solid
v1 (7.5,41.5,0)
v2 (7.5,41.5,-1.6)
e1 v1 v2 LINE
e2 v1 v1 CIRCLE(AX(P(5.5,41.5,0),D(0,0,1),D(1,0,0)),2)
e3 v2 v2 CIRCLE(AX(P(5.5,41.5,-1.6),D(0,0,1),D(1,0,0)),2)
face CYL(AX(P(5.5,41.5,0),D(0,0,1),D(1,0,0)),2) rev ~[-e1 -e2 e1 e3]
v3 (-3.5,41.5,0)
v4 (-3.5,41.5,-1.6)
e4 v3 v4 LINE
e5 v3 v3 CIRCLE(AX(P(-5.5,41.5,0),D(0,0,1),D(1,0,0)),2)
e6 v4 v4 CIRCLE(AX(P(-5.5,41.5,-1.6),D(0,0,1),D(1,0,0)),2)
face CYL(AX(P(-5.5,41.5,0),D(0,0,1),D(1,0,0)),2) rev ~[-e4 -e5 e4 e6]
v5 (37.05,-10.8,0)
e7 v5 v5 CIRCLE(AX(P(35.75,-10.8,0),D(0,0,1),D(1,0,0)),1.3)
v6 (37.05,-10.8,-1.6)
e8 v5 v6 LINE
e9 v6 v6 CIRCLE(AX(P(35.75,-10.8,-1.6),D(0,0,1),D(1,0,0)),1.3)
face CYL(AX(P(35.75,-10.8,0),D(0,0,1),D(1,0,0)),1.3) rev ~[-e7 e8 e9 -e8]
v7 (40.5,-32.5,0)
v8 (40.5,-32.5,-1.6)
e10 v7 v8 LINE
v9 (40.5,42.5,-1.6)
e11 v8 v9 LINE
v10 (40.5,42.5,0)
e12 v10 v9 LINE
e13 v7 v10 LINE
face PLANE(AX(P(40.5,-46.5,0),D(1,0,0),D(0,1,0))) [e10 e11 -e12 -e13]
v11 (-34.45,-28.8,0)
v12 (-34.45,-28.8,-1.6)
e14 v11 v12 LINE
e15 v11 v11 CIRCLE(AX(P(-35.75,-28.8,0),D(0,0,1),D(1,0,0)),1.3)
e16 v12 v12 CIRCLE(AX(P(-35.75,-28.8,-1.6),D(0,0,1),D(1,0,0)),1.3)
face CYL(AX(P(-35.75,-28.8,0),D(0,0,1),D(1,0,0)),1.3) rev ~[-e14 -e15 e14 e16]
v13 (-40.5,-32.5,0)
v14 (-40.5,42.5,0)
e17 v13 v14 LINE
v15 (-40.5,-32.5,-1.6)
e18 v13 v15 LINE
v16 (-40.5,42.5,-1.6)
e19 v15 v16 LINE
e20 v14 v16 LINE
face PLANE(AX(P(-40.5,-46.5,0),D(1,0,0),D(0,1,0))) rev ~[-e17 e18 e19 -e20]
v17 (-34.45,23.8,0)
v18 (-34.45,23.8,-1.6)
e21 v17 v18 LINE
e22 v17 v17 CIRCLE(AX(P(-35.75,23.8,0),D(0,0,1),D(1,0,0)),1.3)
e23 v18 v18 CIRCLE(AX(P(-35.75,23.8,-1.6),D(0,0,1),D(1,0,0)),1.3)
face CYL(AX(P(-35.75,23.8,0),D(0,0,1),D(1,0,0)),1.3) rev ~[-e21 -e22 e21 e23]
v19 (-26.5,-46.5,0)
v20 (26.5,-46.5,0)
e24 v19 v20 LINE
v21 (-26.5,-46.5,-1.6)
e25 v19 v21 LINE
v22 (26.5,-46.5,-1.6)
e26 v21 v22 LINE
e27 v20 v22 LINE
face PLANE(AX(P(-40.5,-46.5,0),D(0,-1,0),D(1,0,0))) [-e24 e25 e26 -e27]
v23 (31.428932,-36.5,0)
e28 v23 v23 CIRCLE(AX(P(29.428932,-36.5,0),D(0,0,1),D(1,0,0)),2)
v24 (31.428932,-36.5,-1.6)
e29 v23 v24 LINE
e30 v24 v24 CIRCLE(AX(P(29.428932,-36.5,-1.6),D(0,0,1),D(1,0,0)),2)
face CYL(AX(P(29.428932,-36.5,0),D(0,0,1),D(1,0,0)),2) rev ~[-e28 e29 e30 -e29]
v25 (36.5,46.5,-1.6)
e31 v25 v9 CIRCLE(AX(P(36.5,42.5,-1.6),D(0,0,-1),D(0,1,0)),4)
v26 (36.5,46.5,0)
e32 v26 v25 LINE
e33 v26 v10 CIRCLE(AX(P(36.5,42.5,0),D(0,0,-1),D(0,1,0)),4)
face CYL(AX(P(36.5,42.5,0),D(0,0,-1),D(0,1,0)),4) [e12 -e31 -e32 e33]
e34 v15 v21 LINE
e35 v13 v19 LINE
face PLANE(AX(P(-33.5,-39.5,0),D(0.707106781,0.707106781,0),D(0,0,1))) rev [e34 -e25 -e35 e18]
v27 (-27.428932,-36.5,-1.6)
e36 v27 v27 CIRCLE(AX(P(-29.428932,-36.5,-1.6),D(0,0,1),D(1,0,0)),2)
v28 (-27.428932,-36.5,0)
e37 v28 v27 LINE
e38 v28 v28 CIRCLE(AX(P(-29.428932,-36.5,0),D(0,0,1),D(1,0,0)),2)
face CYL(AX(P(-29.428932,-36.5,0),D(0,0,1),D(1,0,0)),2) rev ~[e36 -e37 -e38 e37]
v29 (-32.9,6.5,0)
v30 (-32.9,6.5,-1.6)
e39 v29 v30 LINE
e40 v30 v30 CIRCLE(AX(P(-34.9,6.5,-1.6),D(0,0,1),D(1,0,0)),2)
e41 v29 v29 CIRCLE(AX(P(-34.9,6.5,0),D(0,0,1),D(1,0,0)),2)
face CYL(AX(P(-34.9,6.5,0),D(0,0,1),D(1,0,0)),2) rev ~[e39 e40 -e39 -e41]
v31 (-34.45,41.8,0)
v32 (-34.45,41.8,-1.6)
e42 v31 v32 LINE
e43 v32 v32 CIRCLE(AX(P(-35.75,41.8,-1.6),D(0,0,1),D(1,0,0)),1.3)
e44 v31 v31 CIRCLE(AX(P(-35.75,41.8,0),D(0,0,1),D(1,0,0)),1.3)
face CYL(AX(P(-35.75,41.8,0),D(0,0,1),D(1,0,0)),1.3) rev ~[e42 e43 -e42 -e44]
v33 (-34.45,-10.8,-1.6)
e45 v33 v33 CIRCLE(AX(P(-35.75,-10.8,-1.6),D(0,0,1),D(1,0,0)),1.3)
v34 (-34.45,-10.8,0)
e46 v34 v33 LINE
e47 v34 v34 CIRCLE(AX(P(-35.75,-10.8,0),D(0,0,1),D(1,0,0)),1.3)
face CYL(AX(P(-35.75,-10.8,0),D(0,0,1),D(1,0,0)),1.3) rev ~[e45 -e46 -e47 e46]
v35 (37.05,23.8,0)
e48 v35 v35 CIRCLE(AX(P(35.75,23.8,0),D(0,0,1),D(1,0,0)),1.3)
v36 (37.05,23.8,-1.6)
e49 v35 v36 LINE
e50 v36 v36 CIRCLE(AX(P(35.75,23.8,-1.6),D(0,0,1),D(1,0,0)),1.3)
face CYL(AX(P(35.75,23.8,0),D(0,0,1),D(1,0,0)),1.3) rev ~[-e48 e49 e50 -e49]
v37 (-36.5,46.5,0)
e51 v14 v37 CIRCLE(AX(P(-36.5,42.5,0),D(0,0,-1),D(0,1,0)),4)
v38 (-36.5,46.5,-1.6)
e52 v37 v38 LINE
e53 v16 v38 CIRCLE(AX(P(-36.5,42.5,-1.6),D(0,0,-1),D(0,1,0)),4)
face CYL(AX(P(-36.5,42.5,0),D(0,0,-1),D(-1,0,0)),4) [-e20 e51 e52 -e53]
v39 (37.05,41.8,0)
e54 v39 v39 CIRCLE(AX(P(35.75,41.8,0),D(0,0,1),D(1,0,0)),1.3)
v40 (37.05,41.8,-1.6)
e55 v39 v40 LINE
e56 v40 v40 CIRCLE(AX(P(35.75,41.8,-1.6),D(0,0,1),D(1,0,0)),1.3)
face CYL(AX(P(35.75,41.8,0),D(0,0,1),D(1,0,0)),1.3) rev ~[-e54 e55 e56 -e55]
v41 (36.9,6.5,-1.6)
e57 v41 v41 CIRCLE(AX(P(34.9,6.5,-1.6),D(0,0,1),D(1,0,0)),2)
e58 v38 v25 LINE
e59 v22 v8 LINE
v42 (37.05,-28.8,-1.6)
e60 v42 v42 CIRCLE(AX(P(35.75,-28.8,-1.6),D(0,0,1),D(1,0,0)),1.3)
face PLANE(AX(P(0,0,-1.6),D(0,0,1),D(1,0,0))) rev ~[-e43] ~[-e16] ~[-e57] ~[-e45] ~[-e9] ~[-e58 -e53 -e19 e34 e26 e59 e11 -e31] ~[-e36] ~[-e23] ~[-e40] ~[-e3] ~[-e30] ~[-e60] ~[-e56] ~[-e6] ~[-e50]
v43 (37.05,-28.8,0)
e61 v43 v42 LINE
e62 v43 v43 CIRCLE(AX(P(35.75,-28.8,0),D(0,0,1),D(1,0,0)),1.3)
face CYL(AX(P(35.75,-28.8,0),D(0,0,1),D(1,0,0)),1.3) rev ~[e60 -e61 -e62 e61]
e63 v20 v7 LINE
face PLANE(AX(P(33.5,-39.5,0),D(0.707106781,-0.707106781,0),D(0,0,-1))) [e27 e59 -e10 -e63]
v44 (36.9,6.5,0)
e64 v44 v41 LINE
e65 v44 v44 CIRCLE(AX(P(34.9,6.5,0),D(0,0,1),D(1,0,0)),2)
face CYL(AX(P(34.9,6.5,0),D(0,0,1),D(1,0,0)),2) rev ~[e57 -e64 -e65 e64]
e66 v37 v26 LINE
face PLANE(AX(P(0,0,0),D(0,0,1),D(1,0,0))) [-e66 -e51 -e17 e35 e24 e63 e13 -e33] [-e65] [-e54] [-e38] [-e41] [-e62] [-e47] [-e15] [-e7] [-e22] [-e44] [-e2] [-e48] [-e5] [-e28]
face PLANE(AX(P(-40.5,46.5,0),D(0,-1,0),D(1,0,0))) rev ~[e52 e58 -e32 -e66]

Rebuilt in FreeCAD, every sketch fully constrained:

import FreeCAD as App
import Part
import Sketcher
from FreeCAD import Vector


def edges_at(feature, points):
    """Names of the edges that pass closest to the given points."""
    edges = feature.Shape.Edges
    near = lambda p: min(range(len(edges)), key=lambda i: edges[i].distToShape(Part.Vertex(*p))[0])
    return sorted({f"Edge{near(p) + 1}" for p in points})

doc = App.newDocument("Part")
params = doc.addObject("Spreadsheet::Sheet", "Params")
for row, (alias, value) in enumerate([
    ("sketch1_width", "81 mm"),
    ("sketch1_height", "93 mm"),
    ("pad1_length", "1.6 mm"),
    ("chamfer_size", "14 mm"),
    ("fillet_radius", "4 mm"),
    ("sketch2_diameter", "2.6 mm"),
    ("sketch3_diameter", "4 mm"),
    ("sketch4_diameter", "4 mm"),
], start=1):
    params.set(f"A{row}", alias)
    params.set(f"B{row}", "=" + value)
    params.setAlias(f"B{row}", alias)

body = doc.addObject("PartDesign::Body", "Body")

# Sketch on XY plane
sketch1 = body.newObject("Sketcher::SketchObject", "Sketch")
sketch1.AttachmentSupport = (doc.getObject("XY_Plane"), [""])
sketch1.MapMode = "FlatFace"
sketch1.addGeometry([
    Part.LineSegment(Vector(-40, 46, 0), Vector(-40, -46, 0)),
    Part.LineSegment(Vector(-40, -46, 0), Vector(40, -46, 0)),
    Part.LineSegment(Vector(40, -46, 0), Vector(40, 46, 0)),
    Part.LineSegment(Vector(40, 46, 0), Vector(-40, 46, 0)),
], False)
sketch1.addConstraint([
    Sketcher.Constraint("Coincident", 0, 2, 1, 1),
    Sketcher.Constraint("Coincident", 1, 2, 2, 1),
    Sketcher.Constraint("Coincident", 2, 2, 3, 1),
    Sketcher.Constraint("Coincident", 3, 2, 0, 1),
    Sketcher.Constraint("Vertical", 0),
    Sketcher.Constraint("Horizontal", 1),
    Sketcher.Constraint("Vertical", 2),
    Sketcher.Constraint("Horizontal", 3),
    Sketcher.Constraint("Symmetric", 0, 2, 2, 2, -1, 1),
    Sketcher.Constraint("DistanceX", 1, 1, 1, 2, 81.0),
    Sketcher.Constraint("DistanceY", 0, 2, 0, 1, 93.0),
])
sketch1.setExpression("Constraints[9]", "Params.sketch1_width")
sketch1.setExpression("Constraints[10]", "Params.sketch1_height")
pad1 = body.newObject("PartDesign::Pad", "Pad")
pad1.Profile = sketch1
pad1.setExpression("Length", "Params.pad1_length")
pad1.Reversed = True
doc.recompute()

chamfer = body.newObject("PartDesign::Chamfer", "Chamfer")
chamfer.Base = (pad1, edges_at(pad1, [(-40.5, -46.5, -0.8), (40.5, -46.5, -0.8)]))
chamfer.setExpression("Size", "Params.chamfer_size")
doc.recompute()

fillet = body.newObject("PartDesign::Fillet", "Fillet")
fillet.Base = (chamfer, edges_at(chamfer, [(-40.5, 46.5, -0.8), (40.5, 46.5, -0.8)]))
fillet.setExpression("Radius", "Params.fillet_radius")

# Sketch on XY plane
sketch2 = body.newObject("Sketcher::SketchObject", "Sketch001")
sketch2.AttachmentSupport = (doc.getObject("XY_Plane"), [""])
sketch2.MapMode = "FlatFace"
sketch2.addGeometry([
    Part.Circle(Vector(-35.8, 41.8, 0), Vector(0, 0, 1), 1.3),  # 0
    Part.Circle(Vector(-35.8, 23.8, 0), Vector(0, 0, 1), 1.3),  # 1
    Part.Circle(Vector(35.8, 41.8, 0), Vector(0, 0, 1), 1.3),  # 2
    Part.Circle(Vector(35.8, 23.8, 0), Vector(0, 0, 1), 1.3),  # 3
    Part.Circle(Vector(-35.8, -10.8, 0), Vector(0, 0, 1), 1.3),  # 4
    Part.Circle(Vector(-35.8, -28.8, 0), Vector(0, 0, 1), 1.3),  # 5
    Part.Circle(Vector(35.8, -28.8, 0), Vector(0, 0, 1), 1.3),  # 6
    Part.Circle(Vector(35.8, -10.8, 0), Vector(0, 0, 1), 1.3),  # 7
], False)
sketch2.addConstraint([
    Sketcher.Constraint("Equal", 0, 1),
    Sketcher.Constraint("Equal", 1, 2),
    Sketcher.Constraint("Equal", 2, 3),
    Sketcher.Constraint("Equal", 3, 4),
    Sketcher.Constraint("Equal", 4, 5),
    Sketcher.Constraint("Equal", 5, 6),
    Sketcher.Constraint("Equal", 6, 7),
    Sketcher.Constraint("Symmetric", 0, 3, 2, 3, -2),
    Sketcher.Constraint("Symmetric", 1, 3, 3, 3, -2),
    Sketcher.Constraint("Symmetric", 5, 3, 6, 3, -2),
    Sketcher.Constraint("Symmetric", 4, 3, 7, 3, -2),
    Sketcher.Constraint("Vertical", 0, 3, 1, 3),
    Sketcher.Constraint("Vertical", 1, 3, 4, 3),
    Sketcher.Constraint("Vertical", 4, 3, 5, 3),
    Sketcher.Constraint("Diameter", 0, 2.6),
    Sketcher.Constraint("DistanceY", 1, 3, 0, 3, 18.0),
    Sketcher.Constraint("DistanceY", 5, 3, 4, 3, 18.0),
    Sketcher.Constraint("DistanceY", -1, 1, 0, 3, 41.8),
    Sketcher.Constraint("DistanceY", 4, 3, -1, 1, 10.8),
    Sketcher.Constraint("DistanceX", 0, 3, 2, 3, 71.5),
])
sketch2.setExpression("Constraints[14]", "Params.sketch2_diameter")
pocket1 = body.newObject("PartDesign::Pocket", "Pocket")
pocket1.Profile = sketch2
pocket1.Type = "ThroughAll"

# Sketch on XY plane
sketch3 = body.newObject("Sketcher::SketchObject", "Sketch002")
sketch3.AttachmentSupport = (doc.getObject("XY_Plane"), [""])
sketch3.MapMode = "FlatFace"
sketch3.addGeometry([
    Part.Circle(Vector(-5.5, 41.5, 0), Vector(0, 0, 1), 2),
    Part.Circle(Vector(5.5, 41.5, 0), Vector(0, 0, 1), 2),
    Part.Circle(Vector(-29.4, -36.5, 0), Vector(0, 0, 1), 2),
    Part.Circle(Vector(29.4, -36.5, 0), Vector(0, 0, 1), 2),
], False)
sketch3.addConstraint([
    Sketcher.Constraint("Equal", 0, 1),
    Sketcher.Constraint("Equal", 1, 2),
    Sketcher.Constraint("Equal", 2, 3),
    Sketcher.Constraint("Symmetric", 0, 3, 1, 3, -2),
    Sketcher.Constraint("Symmetric", 2, 3, 3, 3, -2),
    Sketcher.Constraint("Diameter", 0, 4.0),
    Sketcher.Constraint("DistanceX", 0, 3, 1, 3, 11.0),
    Sketcher.Constraint("DistanceY", 2, 3, 0, 3, 78.0),
    Sketcher.Constraint("DistanceY", -1, 1, 0, 3, 41.5),
    Sketcher.Constraint("DistanceX", 2, 3, -1, 1, 29.428932),
])
sketch3.setExpression("Constraints[5]", "Params.sketch3_diameter")
pocket2 = body.newObject("PartDesign::Pocket", "Pocket001")
pocket2.Profile = sketch3
pocket2.Type = "ThroughAll"

# Sketch on XY plane
sketch4 = body.newObject("Sketcher::SketchObject", "Sketch003")
sketch4.AttachmentSupport = (doc.getObject("XY_Plane"), [""])
sketch4.MapMode = "FlatFace"
sketch4.addGeometry([
    Part.Circle(Vector(-34.9, 6.5, 0), Vector(0, 0, 1), 2),
    Part.Circle(Vector(34.9, 6.5, 0), Vector(0, 0, 1), 2),
], False)
sketch4.addConstraint([
    Sketcher.Constraint("Equal", 0, 1),
    Sketcher.Constraint("Symmetric", 0, 3, 1, 3, -2),
    Sketcher.Constraint("Diameter", 0, 4.0),
    Sketcher.Constraint("DistanceX", 0, 3, -1, 1, 34.9),
    Sketcher.Constraint("DistanceY", -1, 1, 0, 3, 6.5),
])
sketch4.setExpression("Constraints[2]", "Params.sketch4_diameter")
pocket3 = body.newObject("PartDesign::Pocket", "Pocket002")
pocket3.Profile = sketch4
pocket3.Type = "ThroughAll"

doc.recompute()
